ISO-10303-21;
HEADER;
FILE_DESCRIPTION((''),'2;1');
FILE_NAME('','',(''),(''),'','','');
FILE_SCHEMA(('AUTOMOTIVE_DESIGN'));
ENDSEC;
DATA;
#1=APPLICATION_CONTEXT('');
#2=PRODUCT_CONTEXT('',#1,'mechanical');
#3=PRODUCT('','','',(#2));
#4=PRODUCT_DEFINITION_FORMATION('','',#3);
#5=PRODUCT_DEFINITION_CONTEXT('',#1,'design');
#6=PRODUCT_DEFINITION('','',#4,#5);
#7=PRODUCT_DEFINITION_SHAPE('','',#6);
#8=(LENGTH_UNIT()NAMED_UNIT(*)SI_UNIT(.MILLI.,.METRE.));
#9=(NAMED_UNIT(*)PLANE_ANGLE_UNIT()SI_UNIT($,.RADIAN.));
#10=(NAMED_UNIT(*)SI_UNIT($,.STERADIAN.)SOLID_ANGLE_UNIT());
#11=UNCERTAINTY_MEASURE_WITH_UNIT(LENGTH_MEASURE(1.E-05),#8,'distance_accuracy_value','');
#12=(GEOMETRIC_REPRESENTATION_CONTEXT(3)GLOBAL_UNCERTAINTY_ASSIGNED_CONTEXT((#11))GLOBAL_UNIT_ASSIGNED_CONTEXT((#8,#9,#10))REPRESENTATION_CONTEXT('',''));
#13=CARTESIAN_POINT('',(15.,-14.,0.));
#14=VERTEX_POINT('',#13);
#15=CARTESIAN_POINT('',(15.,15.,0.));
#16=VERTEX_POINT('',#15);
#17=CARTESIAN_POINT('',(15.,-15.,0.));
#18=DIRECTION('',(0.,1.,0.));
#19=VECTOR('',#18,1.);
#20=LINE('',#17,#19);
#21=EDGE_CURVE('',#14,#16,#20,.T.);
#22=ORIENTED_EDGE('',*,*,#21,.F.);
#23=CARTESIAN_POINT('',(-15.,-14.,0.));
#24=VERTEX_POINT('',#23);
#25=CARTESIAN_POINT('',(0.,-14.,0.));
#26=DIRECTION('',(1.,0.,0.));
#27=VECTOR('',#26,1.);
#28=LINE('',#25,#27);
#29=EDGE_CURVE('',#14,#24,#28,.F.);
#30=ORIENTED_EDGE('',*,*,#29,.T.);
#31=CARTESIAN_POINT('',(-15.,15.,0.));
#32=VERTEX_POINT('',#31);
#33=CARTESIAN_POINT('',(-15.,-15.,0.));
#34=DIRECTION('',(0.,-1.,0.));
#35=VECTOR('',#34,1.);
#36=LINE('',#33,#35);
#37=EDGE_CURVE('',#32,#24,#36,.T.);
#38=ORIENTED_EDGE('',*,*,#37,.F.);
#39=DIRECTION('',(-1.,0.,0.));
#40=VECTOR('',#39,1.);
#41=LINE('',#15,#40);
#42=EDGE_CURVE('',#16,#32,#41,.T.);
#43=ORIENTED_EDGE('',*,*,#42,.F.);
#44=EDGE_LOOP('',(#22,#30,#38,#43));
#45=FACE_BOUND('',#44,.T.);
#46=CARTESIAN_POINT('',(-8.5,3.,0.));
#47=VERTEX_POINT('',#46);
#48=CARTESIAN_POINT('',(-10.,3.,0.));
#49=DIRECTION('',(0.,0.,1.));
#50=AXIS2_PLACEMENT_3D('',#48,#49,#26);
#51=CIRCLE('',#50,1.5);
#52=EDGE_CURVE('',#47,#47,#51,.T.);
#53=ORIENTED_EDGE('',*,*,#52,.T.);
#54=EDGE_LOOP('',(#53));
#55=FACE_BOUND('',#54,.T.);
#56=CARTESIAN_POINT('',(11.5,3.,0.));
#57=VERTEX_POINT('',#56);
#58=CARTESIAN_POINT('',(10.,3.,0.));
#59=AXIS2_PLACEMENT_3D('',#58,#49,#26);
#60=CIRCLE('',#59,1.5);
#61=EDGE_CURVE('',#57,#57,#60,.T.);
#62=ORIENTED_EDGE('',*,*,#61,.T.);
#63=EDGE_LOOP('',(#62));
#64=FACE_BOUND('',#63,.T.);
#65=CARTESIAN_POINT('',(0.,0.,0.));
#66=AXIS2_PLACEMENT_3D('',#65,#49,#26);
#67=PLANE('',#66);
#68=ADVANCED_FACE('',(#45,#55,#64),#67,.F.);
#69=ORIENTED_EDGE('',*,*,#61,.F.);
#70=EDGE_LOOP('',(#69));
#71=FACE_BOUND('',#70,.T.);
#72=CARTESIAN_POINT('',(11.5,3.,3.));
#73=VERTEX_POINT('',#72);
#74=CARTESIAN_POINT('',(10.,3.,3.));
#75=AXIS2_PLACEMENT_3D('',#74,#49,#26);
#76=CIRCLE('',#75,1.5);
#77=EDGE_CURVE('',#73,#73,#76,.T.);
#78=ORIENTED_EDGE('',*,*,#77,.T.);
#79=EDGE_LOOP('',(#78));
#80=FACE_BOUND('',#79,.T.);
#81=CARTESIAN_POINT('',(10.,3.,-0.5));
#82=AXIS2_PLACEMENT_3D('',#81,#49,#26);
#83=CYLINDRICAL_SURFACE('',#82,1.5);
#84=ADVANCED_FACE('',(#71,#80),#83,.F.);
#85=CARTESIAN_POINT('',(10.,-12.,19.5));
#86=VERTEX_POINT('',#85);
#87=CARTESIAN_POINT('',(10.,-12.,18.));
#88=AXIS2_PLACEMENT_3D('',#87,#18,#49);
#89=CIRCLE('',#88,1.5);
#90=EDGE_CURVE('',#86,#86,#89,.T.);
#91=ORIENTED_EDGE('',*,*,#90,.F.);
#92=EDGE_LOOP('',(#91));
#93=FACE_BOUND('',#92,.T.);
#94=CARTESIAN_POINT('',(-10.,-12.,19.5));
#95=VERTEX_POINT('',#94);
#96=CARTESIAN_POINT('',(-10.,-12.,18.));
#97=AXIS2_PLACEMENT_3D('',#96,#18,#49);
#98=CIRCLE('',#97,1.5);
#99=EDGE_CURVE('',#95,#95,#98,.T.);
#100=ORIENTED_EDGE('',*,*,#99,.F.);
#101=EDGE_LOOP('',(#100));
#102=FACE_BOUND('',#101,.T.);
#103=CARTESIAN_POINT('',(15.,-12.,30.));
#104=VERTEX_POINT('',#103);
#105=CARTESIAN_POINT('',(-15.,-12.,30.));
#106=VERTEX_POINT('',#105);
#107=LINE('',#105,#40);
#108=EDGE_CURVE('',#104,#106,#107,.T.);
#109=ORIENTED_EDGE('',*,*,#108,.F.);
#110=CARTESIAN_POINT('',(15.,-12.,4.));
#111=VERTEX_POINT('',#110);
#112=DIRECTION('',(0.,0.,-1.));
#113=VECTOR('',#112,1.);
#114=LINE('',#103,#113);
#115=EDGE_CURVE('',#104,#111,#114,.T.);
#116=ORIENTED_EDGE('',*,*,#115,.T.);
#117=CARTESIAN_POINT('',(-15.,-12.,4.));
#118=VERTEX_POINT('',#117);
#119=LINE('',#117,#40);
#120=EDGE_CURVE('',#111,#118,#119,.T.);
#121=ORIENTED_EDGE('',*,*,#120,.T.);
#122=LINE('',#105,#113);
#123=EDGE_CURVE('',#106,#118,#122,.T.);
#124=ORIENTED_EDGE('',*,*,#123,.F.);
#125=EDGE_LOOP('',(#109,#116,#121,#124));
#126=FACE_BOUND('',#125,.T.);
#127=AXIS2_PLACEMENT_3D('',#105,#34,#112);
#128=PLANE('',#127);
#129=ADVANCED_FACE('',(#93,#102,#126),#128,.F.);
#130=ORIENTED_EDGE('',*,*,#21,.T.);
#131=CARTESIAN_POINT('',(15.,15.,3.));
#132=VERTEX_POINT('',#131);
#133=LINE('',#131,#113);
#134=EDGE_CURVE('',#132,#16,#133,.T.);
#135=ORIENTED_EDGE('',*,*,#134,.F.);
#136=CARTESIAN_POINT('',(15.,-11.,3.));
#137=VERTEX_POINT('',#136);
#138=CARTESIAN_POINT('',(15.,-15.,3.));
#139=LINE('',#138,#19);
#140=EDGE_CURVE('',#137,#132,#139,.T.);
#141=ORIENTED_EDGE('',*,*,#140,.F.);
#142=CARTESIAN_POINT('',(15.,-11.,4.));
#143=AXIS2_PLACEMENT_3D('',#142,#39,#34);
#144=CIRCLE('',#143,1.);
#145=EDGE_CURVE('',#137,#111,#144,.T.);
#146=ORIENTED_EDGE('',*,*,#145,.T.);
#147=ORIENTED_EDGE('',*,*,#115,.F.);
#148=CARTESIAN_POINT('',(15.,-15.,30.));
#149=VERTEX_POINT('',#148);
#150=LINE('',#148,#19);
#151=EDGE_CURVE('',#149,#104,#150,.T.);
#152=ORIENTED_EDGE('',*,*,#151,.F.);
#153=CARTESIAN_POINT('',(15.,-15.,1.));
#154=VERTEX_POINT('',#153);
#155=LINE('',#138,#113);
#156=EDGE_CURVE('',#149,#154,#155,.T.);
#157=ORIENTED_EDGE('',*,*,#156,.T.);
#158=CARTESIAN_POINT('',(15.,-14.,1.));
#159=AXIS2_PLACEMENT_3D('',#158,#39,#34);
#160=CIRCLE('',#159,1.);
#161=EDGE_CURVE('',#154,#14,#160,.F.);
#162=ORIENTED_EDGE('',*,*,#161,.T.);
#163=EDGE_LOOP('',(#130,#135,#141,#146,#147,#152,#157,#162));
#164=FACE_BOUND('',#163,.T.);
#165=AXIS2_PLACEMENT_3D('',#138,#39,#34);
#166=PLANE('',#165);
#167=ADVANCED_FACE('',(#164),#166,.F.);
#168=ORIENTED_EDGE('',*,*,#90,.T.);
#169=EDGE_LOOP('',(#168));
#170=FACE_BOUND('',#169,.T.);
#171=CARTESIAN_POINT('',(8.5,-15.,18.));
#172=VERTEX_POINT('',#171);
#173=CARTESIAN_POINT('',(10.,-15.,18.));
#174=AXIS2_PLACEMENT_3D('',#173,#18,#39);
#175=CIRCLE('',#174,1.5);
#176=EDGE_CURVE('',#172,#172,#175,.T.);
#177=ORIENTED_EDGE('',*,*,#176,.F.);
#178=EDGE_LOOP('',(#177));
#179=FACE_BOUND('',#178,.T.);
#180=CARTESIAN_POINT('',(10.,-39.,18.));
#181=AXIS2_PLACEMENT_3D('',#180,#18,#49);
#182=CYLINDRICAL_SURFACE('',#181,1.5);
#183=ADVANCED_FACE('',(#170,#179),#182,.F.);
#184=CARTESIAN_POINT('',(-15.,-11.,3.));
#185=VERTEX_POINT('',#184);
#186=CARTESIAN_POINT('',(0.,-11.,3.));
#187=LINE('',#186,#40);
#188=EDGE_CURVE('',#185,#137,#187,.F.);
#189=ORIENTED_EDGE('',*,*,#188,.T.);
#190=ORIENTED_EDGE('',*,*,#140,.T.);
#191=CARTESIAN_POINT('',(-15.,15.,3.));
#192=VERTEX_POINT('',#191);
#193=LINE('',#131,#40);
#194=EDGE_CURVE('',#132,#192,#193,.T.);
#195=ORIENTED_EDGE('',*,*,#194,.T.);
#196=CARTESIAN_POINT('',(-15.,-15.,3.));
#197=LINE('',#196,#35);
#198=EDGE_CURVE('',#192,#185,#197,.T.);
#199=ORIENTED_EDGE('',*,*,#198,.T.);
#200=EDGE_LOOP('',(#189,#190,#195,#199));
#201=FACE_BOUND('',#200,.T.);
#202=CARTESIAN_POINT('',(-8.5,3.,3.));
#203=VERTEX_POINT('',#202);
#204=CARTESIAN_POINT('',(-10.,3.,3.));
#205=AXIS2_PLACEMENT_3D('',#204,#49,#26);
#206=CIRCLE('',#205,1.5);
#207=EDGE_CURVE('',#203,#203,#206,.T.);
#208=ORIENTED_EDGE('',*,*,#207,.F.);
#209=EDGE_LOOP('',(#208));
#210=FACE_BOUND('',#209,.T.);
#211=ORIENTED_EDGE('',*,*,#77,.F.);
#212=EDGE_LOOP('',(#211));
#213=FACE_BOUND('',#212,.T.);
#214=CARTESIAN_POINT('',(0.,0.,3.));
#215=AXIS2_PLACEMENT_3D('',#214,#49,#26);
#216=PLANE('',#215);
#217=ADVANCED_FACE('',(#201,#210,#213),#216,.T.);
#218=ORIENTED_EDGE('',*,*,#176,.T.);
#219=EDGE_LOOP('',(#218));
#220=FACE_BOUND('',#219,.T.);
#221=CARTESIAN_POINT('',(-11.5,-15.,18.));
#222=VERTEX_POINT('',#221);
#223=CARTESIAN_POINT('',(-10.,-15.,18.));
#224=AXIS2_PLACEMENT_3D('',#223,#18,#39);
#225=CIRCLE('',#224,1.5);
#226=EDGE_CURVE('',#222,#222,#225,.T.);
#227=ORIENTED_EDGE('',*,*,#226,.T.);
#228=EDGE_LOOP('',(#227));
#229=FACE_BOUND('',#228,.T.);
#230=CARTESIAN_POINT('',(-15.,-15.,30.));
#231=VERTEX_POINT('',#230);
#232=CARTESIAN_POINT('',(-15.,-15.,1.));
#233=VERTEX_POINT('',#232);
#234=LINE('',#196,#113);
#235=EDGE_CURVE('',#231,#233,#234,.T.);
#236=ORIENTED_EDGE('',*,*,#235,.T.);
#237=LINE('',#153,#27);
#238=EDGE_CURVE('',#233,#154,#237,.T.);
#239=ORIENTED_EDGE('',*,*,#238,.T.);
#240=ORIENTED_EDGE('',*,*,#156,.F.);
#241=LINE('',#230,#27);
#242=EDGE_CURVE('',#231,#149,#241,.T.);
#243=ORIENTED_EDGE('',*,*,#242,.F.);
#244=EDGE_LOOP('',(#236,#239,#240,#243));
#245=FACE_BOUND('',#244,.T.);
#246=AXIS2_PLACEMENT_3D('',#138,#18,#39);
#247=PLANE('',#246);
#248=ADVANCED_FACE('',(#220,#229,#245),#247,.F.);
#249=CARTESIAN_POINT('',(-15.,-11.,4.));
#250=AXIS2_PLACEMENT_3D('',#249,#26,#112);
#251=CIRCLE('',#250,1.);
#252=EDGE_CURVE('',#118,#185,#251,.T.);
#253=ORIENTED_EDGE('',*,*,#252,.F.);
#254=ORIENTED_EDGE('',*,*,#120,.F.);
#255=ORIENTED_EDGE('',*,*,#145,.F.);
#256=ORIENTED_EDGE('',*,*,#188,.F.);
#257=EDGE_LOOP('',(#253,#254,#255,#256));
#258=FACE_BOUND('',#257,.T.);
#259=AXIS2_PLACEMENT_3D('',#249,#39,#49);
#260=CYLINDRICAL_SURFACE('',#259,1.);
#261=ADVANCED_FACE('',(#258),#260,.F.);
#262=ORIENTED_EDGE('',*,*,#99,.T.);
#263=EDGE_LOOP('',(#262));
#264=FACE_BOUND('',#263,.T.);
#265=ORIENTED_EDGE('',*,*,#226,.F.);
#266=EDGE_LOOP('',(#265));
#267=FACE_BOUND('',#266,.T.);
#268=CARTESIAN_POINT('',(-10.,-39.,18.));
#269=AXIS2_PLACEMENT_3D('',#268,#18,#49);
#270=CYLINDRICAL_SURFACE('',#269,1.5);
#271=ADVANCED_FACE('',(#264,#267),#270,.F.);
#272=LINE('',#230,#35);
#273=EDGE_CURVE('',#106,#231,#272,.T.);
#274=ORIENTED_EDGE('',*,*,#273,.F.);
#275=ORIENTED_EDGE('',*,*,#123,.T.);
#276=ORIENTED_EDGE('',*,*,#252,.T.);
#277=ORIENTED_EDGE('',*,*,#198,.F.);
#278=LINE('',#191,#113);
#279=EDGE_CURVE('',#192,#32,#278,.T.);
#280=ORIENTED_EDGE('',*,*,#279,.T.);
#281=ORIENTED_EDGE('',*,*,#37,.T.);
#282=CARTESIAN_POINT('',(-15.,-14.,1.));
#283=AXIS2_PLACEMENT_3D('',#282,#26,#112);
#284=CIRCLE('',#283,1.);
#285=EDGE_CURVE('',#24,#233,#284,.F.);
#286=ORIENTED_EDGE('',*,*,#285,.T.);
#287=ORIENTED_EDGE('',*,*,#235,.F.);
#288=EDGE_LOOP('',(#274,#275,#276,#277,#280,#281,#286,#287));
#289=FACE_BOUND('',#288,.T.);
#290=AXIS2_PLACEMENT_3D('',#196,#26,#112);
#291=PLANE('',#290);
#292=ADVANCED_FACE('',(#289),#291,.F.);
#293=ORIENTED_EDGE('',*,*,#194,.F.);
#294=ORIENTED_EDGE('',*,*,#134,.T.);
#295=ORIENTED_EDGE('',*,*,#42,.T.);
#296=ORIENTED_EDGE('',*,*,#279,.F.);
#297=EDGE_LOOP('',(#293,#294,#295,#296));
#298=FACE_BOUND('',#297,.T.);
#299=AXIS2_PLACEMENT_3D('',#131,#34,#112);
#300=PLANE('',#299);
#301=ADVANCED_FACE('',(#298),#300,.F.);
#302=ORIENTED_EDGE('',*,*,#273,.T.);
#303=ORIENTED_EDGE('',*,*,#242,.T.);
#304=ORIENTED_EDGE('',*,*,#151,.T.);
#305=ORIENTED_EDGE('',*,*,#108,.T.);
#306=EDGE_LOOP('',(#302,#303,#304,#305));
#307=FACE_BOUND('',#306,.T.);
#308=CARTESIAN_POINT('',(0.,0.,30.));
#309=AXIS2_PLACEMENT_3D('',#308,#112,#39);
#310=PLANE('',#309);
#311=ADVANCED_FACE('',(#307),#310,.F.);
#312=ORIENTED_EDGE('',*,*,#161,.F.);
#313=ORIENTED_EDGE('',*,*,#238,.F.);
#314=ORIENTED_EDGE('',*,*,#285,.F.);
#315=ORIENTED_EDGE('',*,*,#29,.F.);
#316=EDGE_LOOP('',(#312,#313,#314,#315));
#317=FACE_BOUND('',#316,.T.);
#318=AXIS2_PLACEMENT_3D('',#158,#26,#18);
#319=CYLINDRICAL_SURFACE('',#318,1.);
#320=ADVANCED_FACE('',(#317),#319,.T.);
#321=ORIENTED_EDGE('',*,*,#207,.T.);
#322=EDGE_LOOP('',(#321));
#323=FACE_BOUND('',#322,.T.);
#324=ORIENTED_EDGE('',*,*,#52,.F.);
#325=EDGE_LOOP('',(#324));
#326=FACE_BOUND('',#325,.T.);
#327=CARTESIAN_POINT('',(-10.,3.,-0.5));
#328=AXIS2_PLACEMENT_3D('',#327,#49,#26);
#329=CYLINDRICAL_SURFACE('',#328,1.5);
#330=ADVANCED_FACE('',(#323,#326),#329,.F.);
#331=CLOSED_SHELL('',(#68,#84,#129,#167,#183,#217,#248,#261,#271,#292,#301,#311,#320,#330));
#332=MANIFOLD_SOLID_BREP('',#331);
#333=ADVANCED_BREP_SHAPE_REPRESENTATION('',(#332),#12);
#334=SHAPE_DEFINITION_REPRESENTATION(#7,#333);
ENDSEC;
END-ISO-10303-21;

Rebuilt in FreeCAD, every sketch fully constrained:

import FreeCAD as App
import Part
import Sketcher
from FreeCAD import Vector


def edges_at(feature, points):
    """Names of the edges that pass closest to the given points."""
    edges = feature.Shape.Edges
    near = lambda p: min(range(len(edges)), key=lambda i: edges[i].distToShape(Part.Vertex(*p))[0])
    return sorted({f"Edge{near(p) + 1}" for p in points})

doc = App.newDocument("Part")
params = doc.addObject("Spreadsheet::Sheet", "Params")
for row, (alias, value) in enumerate([
    ("sketch1_width", "30 mm"),
    ("pad1_length", "3 mm"),
    ("sketch2_diameter", "3 mm"),
    ("pocket1_length", "3.5 mm"),
    ("sketch3_width", "30 mm"),
    ("sketch3_height", "3 mm"),
    ("pad2_length", "27 mm"),
    ("sketch4_diameter", "3 mm"),
    ("pocket2_length", "27 mm"),
    ("fillet_radius", "1 mm"),
    ("fillet2_radius", "1 mm"),
], start=1):
    params.set(f"A{row}", alias)
    params.set(f"B{row}", "=" + value)
    params.setAlias(f"B{row}", alias)

body = doc.addObject("PartDesign::Body", "Body")

# Sketch on XY plane
sketch1 = doc.addObject("Sketcher::SketchObject", "Sketch")
body.addObject(sketch1)
sketch1.AttachmentSupport = (doc.XY_Plane, [""])
sketch1.MapMode = "FlatFace"
sketch1.addGeometry([
    Part.LineSegment(Vector(-15, 15, 0), Vector(-15, -15, 0)),
    Part.LineSegment(Vector(-15, -15, 0), Vector(15, -15, 0)),
    Part.LineSegment(Vector(15, -15, 0), Vector(15, 15, 0)),
    Part.LineSegment(Vector(15, 15, 0), Vector(-15, 15, 0)),
], False)
sketch1.addConstraint([
    Sketcher.Constraint("Coincident", 0, 2, 1, 1),
    Sketcher.Constraint("Coincident", 1, 2, 2, 1),
    Sketcher.Constraint("Coincident", 2, 2, 3, 1),
    Sketcher.Constraint("Coincident", 3, 2, 0, 1),
    Sketcher.Constraint("Vertical", 0),
    Sketcher.Constraint("Horizontal", 1),
    Sketcher.Constraint("Vertical", 2),
    Sketcher.Constraint("Horizontal", 3),
    Sketcher.Constraint("Symmetric", 0, 2, 2, 2, -1, 1),
    Sketcher.Constraint("Equal", 3, 0),
    Sketcher.Constraint("DistanceX", 1, 1, 1, 2, 30.0),
])
sketch1.setExpression("Constraints[10]", "Params.sketch1_width")
pad1 = doc.addObject("PartDesign::Pad", "Pad")
body.addObject(pad1)
pad1.Profile = sketch1
pad1.setExpression("Length", "Params.pad1_length")

# Sketch on XY plane
sketch2 = doc.addObject("Sketcher::SketchObject", "Sketch001")
body.addObject(sketch2)
sketch2.AttachmentSupport = (doc.XY_Plane, [""])
sketch2.MapMode = "FlatFace"
sketch2.AttachmentOffset = App.Placement(Vector(0, 0, 3), App.Rotation())
sketch2.addGeometry([
    Part.Circle(Vector(10, 3, 0), Vector(0, 0, 1), 1.5),
    Part.Circle(Vector(-10, 3, 0), Vector(0, 0, 1), 1.5),
], False)
sketch2.addConstraint([
    Sketcher.Constraint("Equal", 0, 1),
    Sketcher.Constraint("Symmetric", 0, 3, 1, 3, -2),
    Sketcher.Constraint("Diameter", 0, 3.0),
    Sketcher.Constraint("DistanceX", -1, 1, 0, 3, 10.0),
    Sketcher.Constraint("DistanceY", -1, 1, 0, 3, 3.0),
])
sketch2.setExpression("Constraints[2]", "Params.sketch2_diameter")
pocket1 = doc.addObject("PartDesign::Pocket", "Pocket")
body.addObject(pocket1)
pocket1.Profile = sketch2
pocket1.setExpression("Length", "Params.pocket1_length")

# Sketch on XY plane
sketch3 = doc.addObject("Sketcher::SketchObject", "Sketch002")
body.addObject(sketch3)
sketch3.AttachmentSupport = (doc.XY_Plane, [""])
sketch3.MapMode = "FlatFace"
sketch3.AttachmentOffset = App.Placement(Vector(0, 0, 3), App.Rotation())
sketch3.addGeometry([
    Part.LineSegment(Vector(-15, -12, 0), Vector(-15, -15, 0)),
    Part.LineSegment(Vector(-15, -15, 0), Vector(15, -15, 0)),
    Part.LineSegment(Vector(15, -15, 0), Vector(15, -12, 0)),
    Part.LineSegment(Vector(15, -12, 0), Vector(-15, -12, 0)),
], False)
sketch3.addConstraint([
    Sketcher.Constraint("Coincident", 0, 2, 1, 1),
    Sketcher.Constraint("Coincident", 1, 2, 2, 1),
    Sketcher.Constraint("Coincident", 2, 2, 3, 1),
    Sketcher.Constraint("Coincident", 3, 2, 0, 1),
    Sketcher.Constraint("Vertical", 0),
    Sketcher.Constraint("Horizontal", 1),
    Sketcher.Constraint("Vertical", 2),
    Sketcher.Constraint("Horizontal", 3),
    Sketcher.Constraint("DistanceX", 1, 1, 1, 2, 30.0),
    Sketcher.Constraint("DistanceY", 0, 2, 0, 1, 3.0),
    Sketcher.Constraint("DistanceX", 0, 2, -1, 1, 15.0),
    Sketcher.Constraint("DistanceY", 0, 2, -1, 1, 15.0),
])
sketch3.setExpression("Constraints[8]", "Params.sketch3_width")
sketch3.setExpression("Constraints[9]", "Params.sketch3_height")
pad2 = doc.addObject("PartDesign::Pad", "Pad001")
body.addObject(pad2)
pad2.Profile = sketch3
pad2.setExpression("Length", "Params.pad2_length")

# Sketch on XZ plane
sketch4 = doc.addObject("Sketcher::SketchObject", "Sketch003")
body.addObject(sketch4)
sketch4.AttachmentSupport = (doc.XZ_Plane, [""])
sketch4.MapMode = "FlatFace"
sketch4.AttachmentOffset = App.Placement(Vector(0, 0, 12), App.Rotation())
sketch4.addGeometry([
    Part.Circle(Vector(10, 18, 0), Vector(0, 0, 1), 1.5),
    Part.Circle(Vector(-10, 18, 0), Vector(0, 0, 1), 1.5),
], False)
sketch4.addConstraint([
    Sketcher.Constraint("Equal", 0, 1),
    Sketcher.Constraint("Symmetric", 0, 3, 1, 3, -2),
    Sketcher.Constraint("Diameter", 0, 3.0),
    Sketcher.Constraint("DistanceX", -1, 1, 0, 3, 10.0),
    Sketcher.Constraint("DistanceY", -1, 1, 0, 3, 18.0),
])
sketch4.setExpression("Constraints[2]", "Params.sketch4_diameter")
pocket2 = doc.addObject("PartDesign::Pocket", "Pocket001")
body.addObject(pocket2)
pocket2.Profile = sketch4
pocket2.setExpression("Length", "Params.pocket2_length")
pocket2.Reversed = True
doc.recompute()

fillet = doc.addObject("PartDesign::Fillet", "Fillet")
body.addObject(fillet)
fillet.Base = (pocket2, edges_at(pocket2, [(0, -12, 3)]))
fillet.setExpression("Radius", "Params.fillet_radius")
doc.recompute()

fillet2 = doc.addObject("PartDesign::Fillet", "Fillet001")
body.addObject(fillet2)
fillet2.Base = (fillet, edges_at(fillet, [(0, -15, 0)]))
fillet2.setExpression("Radius", "Params.fillet2_radius")

doc.recompute()
